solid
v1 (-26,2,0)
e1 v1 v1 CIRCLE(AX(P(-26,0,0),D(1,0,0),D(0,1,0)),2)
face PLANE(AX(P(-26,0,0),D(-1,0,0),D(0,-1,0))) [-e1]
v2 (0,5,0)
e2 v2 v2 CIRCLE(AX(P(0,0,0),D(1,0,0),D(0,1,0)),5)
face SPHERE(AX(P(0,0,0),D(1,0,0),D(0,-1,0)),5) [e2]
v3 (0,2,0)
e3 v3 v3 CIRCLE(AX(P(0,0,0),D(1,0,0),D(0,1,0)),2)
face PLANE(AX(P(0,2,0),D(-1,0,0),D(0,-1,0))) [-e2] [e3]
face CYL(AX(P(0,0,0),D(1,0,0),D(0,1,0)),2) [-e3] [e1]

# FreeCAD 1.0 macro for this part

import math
import FreeCAD as App
import Part
import Sketcher

V = App.Vector
Q = App.Units.Quantity

doc = App.newDocument("Part")
body = doc.addObject("PartDesign::Body", "Body")

# Sketch on XY plane
sketch1 = body.newObject("Sketcher::SketchObject", "Sketch")
sketch1.AttachmentSupport = (doc.getObject("XY_Plane"), [""])
sketch1.MapMode = "FlatFace"
sketch1.addGeometry(Part.LineSegment(V(-26, 2, 0), V(-26, 0, 0)), False)
sketch1.addGeometry(Part.LineSegment(V(-26, 0, 0), V(5, 0, 0)), False)
sketch1.addGeometry(Part.ArcOfCircle(Part.Circle(V(0, 0, 0), V(0, 0, 1), 5), math.radians(0), math.radians(90)), False)
sketch1.addGeometry(Part.LineSegment(V(0, 5, 0), V(0, 2, 0)), False)
sketch1.addGeometry(Part.LineSegment(V(0, 2, 0), V(-26, 2, 0)), False)
sketch1.addConstraint(Sketcher.Constraint("Coincident", 0, 2, 1, 1))
sketch1.addConstraint(Sketcher.Constraint("Coincident", 1, 2, 2, 1))
sketch1.addConstraint(Sketcher.Constraint("Coincident", 2, 2, 3, 1))
sketch1.addConstraint(Sketcher.Constraint("Coincident", 3, 2, 4, 1))
sketch1.addConstraint(Sketcher.Constraint("Coincident", 4, 2, 0, 1))
sketch1.addConstraint(Sketcher.Constraint("Vertical", 0))
sketch1.addConstraint(Sketcher.Constraint("Horizontal", 1))
sketch1.addConstraint(Sketcher.Constraint("Vertical", 3))
sketch1.addConstraint(Sketcher.Constraint("Horizontal", 4))
sketch1.addConstraint(Sketcher.Constraint("Coincident", 2, 3, -1, 1))
sketch1.addConstraint(Sketcher.Constraint("PointOnObject", 0, 2, -1))
sketch1.addConstraint(Sketcher.Constraint("PointOnObject", 2, 2, -2))
sketch1.addConstraint(Sketcher.Constraint("Radius", 2, Q("5 mm")))
sketch1.addConstraint(Sketcher.Constraint("DistanceX", 1, 1, 1, 2, Q("31 mm")))
sketch1.addConstraint(Sketcher.Constraint("DistanceY", 0, 2, 0, 1, Q("2 mm")))
revolution = body.newObject("PartDesign::Revolution", "Revolution")
revolution.Profile = sketch1
revolution.ReferenceAxis = (sketch1, ["H_Axis"])
revolution.Angle = 360

doc.recompute()
